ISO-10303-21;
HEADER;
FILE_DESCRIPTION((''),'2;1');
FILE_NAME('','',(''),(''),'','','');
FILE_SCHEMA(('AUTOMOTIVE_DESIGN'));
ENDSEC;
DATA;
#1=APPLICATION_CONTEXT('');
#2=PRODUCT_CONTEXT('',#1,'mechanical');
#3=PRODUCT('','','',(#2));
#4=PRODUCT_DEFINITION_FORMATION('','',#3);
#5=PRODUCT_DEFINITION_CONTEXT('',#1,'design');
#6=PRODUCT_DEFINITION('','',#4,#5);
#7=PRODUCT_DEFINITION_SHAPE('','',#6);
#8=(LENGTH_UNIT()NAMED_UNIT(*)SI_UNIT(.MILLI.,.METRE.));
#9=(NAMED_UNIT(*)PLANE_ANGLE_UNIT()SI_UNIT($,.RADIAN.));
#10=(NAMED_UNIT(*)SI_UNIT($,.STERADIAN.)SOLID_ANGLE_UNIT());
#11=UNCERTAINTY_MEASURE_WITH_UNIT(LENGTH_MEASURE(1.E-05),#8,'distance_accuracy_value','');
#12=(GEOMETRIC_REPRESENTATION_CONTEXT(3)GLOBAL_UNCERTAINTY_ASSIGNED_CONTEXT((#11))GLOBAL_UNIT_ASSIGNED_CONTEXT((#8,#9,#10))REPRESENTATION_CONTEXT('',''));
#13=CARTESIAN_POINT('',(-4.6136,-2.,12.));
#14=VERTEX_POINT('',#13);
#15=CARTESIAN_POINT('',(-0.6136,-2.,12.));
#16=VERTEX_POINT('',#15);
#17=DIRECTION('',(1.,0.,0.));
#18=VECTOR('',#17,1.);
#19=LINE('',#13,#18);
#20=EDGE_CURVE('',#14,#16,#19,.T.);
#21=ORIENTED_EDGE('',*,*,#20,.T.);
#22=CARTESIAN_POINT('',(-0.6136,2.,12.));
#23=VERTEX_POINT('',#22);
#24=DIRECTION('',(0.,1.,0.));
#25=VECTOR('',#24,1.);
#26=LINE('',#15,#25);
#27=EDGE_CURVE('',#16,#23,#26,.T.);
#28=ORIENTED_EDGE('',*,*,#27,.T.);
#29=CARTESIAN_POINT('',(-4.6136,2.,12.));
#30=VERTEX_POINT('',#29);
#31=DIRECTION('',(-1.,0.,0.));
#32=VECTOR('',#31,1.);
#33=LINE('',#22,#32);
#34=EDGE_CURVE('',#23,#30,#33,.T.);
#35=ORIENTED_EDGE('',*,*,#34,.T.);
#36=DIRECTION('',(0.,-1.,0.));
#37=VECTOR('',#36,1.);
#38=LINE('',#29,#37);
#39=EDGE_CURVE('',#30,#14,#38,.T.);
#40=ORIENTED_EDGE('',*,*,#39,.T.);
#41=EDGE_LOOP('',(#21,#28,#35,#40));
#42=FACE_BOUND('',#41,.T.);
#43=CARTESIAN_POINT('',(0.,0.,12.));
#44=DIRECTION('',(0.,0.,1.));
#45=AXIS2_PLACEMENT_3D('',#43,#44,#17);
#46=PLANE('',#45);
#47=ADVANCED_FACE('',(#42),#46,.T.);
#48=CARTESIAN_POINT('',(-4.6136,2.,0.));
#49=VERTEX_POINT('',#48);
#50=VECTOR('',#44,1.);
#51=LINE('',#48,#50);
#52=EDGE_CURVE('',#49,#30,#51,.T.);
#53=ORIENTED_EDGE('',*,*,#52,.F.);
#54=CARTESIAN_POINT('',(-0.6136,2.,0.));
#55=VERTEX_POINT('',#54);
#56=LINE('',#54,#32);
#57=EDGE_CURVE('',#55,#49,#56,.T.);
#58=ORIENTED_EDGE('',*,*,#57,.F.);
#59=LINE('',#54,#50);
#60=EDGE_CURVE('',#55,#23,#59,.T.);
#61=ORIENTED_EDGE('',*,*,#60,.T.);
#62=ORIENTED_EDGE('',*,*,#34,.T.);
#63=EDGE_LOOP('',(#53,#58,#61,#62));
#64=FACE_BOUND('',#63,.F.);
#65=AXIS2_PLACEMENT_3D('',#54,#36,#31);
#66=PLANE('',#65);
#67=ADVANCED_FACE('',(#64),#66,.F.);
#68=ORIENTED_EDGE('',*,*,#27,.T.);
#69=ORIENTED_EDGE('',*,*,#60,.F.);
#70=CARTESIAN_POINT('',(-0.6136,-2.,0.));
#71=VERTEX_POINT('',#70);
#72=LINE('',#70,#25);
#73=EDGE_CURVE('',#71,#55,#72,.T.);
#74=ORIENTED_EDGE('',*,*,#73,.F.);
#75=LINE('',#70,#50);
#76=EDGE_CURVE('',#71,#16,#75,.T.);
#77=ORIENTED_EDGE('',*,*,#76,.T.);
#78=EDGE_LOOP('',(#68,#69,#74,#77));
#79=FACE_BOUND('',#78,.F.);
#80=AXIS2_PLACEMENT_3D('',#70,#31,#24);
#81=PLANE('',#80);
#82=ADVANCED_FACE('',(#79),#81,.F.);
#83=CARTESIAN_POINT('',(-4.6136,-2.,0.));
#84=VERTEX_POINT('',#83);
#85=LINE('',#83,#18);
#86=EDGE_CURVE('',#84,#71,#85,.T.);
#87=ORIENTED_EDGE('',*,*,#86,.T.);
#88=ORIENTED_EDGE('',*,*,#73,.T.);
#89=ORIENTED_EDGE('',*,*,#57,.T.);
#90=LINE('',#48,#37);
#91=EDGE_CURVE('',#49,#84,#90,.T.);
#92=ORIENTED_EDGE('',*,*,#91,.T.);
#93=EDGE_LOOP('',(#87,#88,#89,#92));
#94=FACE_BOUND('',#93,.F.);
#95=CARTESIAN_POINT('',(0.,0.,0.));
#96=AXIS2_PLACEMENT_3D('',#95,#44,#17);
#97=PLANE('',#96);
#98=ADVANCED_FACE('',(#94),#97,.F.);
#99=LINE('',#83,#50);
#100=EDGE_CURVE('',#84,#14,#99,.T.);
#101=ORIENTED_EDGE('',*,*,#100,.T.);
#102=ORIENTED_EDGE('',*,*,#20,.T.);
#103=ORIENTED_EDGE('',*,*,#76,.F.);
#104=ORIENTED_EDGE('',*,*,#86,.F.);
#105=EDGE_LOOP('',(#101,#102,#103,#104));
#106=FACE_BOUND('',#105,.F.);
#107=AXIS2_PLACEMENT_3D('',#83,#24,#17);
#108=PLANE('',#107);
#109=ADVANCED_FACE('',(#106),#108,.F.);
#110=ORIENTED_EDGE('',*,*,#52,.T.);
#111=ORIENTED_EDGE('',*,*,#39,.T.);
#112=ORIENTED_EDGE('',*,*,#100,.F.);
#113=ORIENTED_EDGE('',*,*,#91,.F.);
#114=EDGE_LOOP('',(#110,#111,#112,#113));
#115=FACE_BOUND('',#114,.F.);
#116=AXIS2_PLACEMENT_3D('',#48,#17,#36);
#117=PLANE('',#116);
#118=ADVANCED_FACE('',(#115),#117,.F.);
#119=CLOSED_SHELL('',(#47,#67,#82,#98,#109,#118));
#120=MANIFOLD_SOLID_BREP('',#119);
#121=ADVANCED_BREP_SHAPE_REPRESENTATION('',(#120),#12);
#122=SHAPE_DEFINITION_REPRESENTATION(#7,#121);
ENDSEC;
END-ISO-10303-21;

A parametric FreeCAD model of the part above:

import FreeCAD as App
import Part
import Sketcher

V = App.Vector
Q = App.Units.Quantity

doc = App.newDocument("Part")
body = doc.addObject("PartDesign::Body", "Body")

# Sketch on XY plane
sketch1 = doc.addObject("Sketcher::SketchObject", "Sketch")
body.addObject(sketch1)
sketch1.AttachmentSupport = (doc.XY_Plane, [""])
sketch1.MapMode = "FlatFace"
sketch1.addGeometry(Part.LineSegment(V(-4.6136, 2, 0), V(-4.6136, -2, 0)), False)
sketch1.addGeometry(Part.LineSegment(V(-4.6136, -2, 0), V(-0.6136, -2, 0)), False)
sketch1.addGeometry(Part.LineSegment(V(-0.6136, -2, 0), V(-0.6136, 2, 0)), False)
sketch1.addGeometry(Part.LineSegment(V(-0.6136, 2, 0), V(-4.6136, 2, 0)), False)
sketch1.addConstraint(Sketcher.Constraint("Coincident", 0, 2, 1, 1))
sketch1.addConstraint(Sketcher.Constraint("Coincident", 1, 2, 2, 1))
sketch1.addConstraint(Sketcher.Constraint("Coincident", 2, 2, 3, 1))
sketch1.addConstraint(Sketcher.Constraint("Coincident", 3, 2, 0, 1))
sketch1.addConstraint(Sketcher.Constraint("Vertical", 0))
sketch1.addConstraint(Sketcher.Constraint("Horizontal", 1))
sketch1.addConstraint(Sketcher.Constraint("Vertical", 2))
sketch1.addConstraint(Sketcher.Constraint("Horizontal", 3))
sketch1.addConstraint(Sketcher.Constraint("Equal", 3, 0))
sketch1.addConstraint(Sketcher.Constraint("DistanceX", 1, 1, 1, 2, Q("4 mm")))
sketch1.addConstraint(Sketcher.Constraint("DistanceY", 0, 2, -1, 1, Q("2 mm")))
sketch1.addConstraint(Sketcher.Constraint("DistanceX", 0, 2, -1, 1, Q("4.6136 mm")))
pad1 = doc.addObject("PartDesign::Pad", "Pad")
body.addObject(pad1)
pad1.Profile = sketch1
pad1.Length = 12

doc.recompute()
